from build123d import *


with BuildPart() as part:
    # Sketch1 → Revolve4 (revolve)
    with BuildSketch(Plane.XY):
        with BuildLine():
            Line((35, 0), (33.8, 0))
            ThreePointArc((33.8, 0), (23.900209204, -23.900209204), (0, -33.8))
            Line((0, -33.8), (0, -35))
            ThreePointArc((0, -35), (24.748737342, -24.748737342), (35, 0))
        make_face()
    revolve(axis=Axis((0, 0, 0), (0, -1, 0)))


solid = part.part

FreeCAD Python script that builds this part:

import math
import FreeCAD as App
import Part
import Sketcher
from FreeCAD import Vector
Q = App.Units.Quantity

doc = App.newDocument("Part")
params = doc.addObject("Spreadsheet::Sheet", "Params")
for row, (alias, value) in enumerate([
    ("sketch1_radius", "35 mm"),
    ("sketch1_radius2", "33.8 mm"),
    ("revolution_angle", "360 deg"),
], start=1):
    params.set(f"A{row}", alias)
    params.set(f"B{row}", "=" + value)
    params.setAlias(f"B{row}", alias)

body = doc.addObject("PartDesign::Body", "Body")

sketch1 = doc.addObject("Sketcher::SketchObject", "Sketch")
body.addObject(sketch1)
sketch1.AttachmentSupport = (doc.XY_Plane, [""])
sketch1.MapMode = "FlatFace"
sketch1.addGeometry([
    Part.LineSegment(Vector(35, 0, 0), Vector(33.8, 0, 0)),
    Part.ArcOfCircle(Part.Circle(Vector(0, 0, 0), Vector(0, 0, 1), 33.8), math.radians(-90), math.radians(0)),
    Part.LineSegment(Vector(0, -33.8, 0), Vector(0, -35, 0)),
    Part.ArcOfCircle(Part.Circle(Vector(0, 0, 0), Vector(0, 0, 1), 35), math.radians(-90), math.radians(0)),
], False)
sketch1.addConstraint([
    Sketcher.Constraint("Coincident", 0, 2, 1, 2),
    Sketcher.Constraint("Coincident", 1, 1, 2, 1),
    Sketcher.Constraint("Coincident", 2, 2, 3, 1),
    Sketcher.Constraint("Coincident", 3, 2, 0, 1),
    Sketcher.Constraint("Horizontal", 0),
    Sketcher.Constraint("Vertical", 2),
    Sketcher.Constraint("Coincident", 1, 3, -1, 1),
    Sketcher.Constraint("Coincident", 3, 3, -1, 1),
    Sketcher.Constraint("PointOnObject", 0, 2, -1),
    Sketcher.Constraint("PointOnObject", 1, 1, -2),
    Sketcher.Constraint("Radius", 3, Q("35 mm")),
    Sketcher.Constraint("Radius", 1, Q("33.8 mm")),
])
sketch1.setExpression("Constraints[10]", "Params.sketch1_radius")
sketch1.setExpression("Constraints[11]", "Params.sketch1_radius2")
revolution = doc.addObject("PartDesign::Revolution", "Revolution")
body.addObject(revolution)
revolution.Profile = sketch1
revolution.ReferenceAxis = (sketch1, ["V_Axis"])
revolution.setExpression("Angle", "Params.revolution_angle")

doc.recompute()
